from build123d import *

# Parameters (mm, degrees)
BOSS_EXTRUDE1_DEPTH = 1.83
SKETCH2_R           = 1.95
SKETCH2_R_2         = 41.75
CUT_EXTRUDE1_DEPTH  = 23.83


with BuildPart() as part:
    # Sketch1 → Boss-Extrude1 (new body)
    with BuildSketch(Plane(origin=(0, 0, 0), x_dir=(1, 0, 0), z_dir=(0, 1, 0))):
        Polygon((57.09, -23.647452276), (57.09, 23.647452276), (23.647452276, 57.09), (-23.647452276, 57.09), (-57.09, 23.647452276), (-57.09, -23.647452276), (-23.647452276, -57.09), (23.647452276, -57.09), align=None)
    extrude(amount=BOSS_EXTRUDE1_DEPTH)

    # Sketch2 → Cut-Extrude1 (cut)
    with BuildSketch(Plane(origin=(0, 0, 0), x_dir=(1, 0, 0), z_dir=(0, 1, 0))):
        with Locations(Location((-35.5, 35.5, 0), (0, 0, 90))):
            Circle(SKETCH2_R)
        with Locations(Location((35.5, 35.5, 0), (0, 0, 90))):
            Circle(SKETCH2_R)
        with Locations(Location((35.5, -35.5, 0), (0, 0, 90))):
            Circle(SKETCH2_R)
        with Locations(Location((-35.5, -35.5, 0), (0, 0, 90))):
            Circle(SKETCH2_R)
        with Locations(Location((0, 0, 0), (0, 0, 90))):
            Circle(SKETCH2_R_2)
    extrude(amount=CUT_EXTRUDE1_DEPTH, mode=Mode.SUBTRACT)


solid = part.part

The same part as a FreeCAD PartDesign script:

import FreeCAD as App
import Part
import Sketcher

doc = App.newDocument("Part")
body = doc.addObject("PartDesign::Body", "Body")

# Sketch on XZ plane
sketch1 = body.newObject("Sketcher::SketchObject", "Sketch")
sketch1.AttachmentSupport = (doc.getObject("XZ_Plane"), [""])
sketch1.MapMode = "FlatFace"
sketch1.addGeometry([
    Part.LineSegment(App.Vector(57, 24, 0), App.Vector(57, -24, 0)),  # 0
    Part.LineSegment(App.Vector(57, -24, 0), App.Vector(24, -57, 0)),  # 1
    Part.LineSegment(App.Vector(24, -57, 0), App.Vector(-24, -57, 0)),  # 2
    Part.LineSegment(App.Vector(-24, -57, 0), App.Vector(-57, -24, 0)),  # 3
    Part.LineSegment(App.Vector(-57, -24, 0), App.Vector(-57, 24, 0)),  # 4
    Part.LineSegment(App.Vector(-57, 24, 0), App.Vector(-24, 57, 0)),  # 5
    Part.LineSegment(App.Vector(-24, 57, 0), App.Vector(24, 57, 0)),  # 6
    Part.LineSegment(App.Vector(24, 57, 0), App.Vector(57, 24, 0)),  # 7
], False)
sketch1.addConstraint([
    Sketcher.Constraint("Coincident", 0, 2, 1, 1),
    Sketcher.Constraint("Coincident", 1, 2, 2, 1),
    Sketcher.Constraint("Coincident", 2, 2, 3, 1),
    Sketcher.Constraint("Coincident", 3, 2, 4, 1),
    Sketcher.Constraint("Coincident", 4, 2, 5, 1),
    Sketcher.Constraint("Coincident", 5, 2, 6, 1),
    Sketcher.Constraint("Coincident", 6, 2, 7, 1),
    Sketcher.Constraint("Coincident", 7, 2, 0, 1),
    Sketcher.Constraint("Vertical", 0),
    Sketcher.Constraint("Horizontal", 2),
    Sketcher.Constraint("Vertical", 4),
    Sketcher.Constraint("Horizontal", 6),
    Sketcher.Constraint("Symmetric", 0, 2, 4, 2, -1, 1),
    Sketcher.Constraint("Symmetric", 1, 2, 5, 2, -1, 1),
    Sketcher.Constraint("Perpendicular", 1, 3),
    Sketcher.Constraint("Perpendicular", 5, 7),
    Sketcher.Constraint("Horizontal", 0, 2, 3, 2),
    Sketcher.Constraint("Horizontal", 4, 2, 7, 2),
    Sketcher.Constraint("Vertical", 2, 2, 5, 2),
    Sketcher.Constraint("Equal", 6, 0),
    Sketcher.Constraint("DistanceX", -1, 1, 0, 2, 57.09),
    Sketcher.Constraint("DistanceX", 2, 2, 2, 1, 47.294905),
])
pad1 = body.newObject("PartDesign::Pad", "Pad")
pad1.Profile = sketch1
pad1.Length = 1.83
pad1.Reversed = True

# Sketch on XZ plane
sketch2 = body.newObject("Sketcher::SketchObject", "Sketch001")
sketch2.AttachmentSupport = (doc.getObject("XZ_Plane"), [""])
sketch2.MapMode = "FlatFace"
sketch2.addGeometry([
    Part.Circle(App.Vector(-35.5, -35.5, 0), App.Vector(0, 0, 1), 1.9),  # 0
    Part.Circle(App.Vector(35.5, -35.5, 0), App.Vector(0, 0, 1), 1.9),  # 1
    Part.Circle(App.Vector(35.5, 35.5, 0), App.Vector(0, 0, 1), 1.9),  # 2
    Part.Circle(App.Vector(-35.5, 35.5, 0), App.Vector(0, 0, 1), 1.9),  # 3
    Part.Circle(App.Vector(0, 0, 0), App.Vector(0, 0, 1), 41.8),  # 4
], False)
sketch2.addConstraint([
    Sketcher.Constraint("Coincident", 4, 3, -1, 1),
    Sketcher.Constraint("Equal", 0, 1),
    Sketcher.Constraint("Equal", 1, 2),
    Sketcher.Constraint("Equal", 2, 3),
    Sketcher.Constraint("Symmetric", 0, 3, 2, 3, -1, 1),
    Sketcher.Constraint("Symmetric", 1, 3, 3, 3, -1, 1),
    Sketcher.Constraint("Symmetric", 0, 3, 1, 3, -2),
    Sketcher.Constraint("Diameter", 0, 3.9),
    Sketcher.Constraint("Diameter", 4, 83.5),
    Sketcher.Constraint("DistanceX", 0, 3, 1, 3, 71.0),
    Sketcher.Constraint("DistanceY", 1, 3, 2, 3, 71.0),
])
pocket1 = body.newObject("PartDesign::Pocket", "Pocket")
pocket1.Profile = sketch2
pocket1.Length = 23.83

doc.recompute()
